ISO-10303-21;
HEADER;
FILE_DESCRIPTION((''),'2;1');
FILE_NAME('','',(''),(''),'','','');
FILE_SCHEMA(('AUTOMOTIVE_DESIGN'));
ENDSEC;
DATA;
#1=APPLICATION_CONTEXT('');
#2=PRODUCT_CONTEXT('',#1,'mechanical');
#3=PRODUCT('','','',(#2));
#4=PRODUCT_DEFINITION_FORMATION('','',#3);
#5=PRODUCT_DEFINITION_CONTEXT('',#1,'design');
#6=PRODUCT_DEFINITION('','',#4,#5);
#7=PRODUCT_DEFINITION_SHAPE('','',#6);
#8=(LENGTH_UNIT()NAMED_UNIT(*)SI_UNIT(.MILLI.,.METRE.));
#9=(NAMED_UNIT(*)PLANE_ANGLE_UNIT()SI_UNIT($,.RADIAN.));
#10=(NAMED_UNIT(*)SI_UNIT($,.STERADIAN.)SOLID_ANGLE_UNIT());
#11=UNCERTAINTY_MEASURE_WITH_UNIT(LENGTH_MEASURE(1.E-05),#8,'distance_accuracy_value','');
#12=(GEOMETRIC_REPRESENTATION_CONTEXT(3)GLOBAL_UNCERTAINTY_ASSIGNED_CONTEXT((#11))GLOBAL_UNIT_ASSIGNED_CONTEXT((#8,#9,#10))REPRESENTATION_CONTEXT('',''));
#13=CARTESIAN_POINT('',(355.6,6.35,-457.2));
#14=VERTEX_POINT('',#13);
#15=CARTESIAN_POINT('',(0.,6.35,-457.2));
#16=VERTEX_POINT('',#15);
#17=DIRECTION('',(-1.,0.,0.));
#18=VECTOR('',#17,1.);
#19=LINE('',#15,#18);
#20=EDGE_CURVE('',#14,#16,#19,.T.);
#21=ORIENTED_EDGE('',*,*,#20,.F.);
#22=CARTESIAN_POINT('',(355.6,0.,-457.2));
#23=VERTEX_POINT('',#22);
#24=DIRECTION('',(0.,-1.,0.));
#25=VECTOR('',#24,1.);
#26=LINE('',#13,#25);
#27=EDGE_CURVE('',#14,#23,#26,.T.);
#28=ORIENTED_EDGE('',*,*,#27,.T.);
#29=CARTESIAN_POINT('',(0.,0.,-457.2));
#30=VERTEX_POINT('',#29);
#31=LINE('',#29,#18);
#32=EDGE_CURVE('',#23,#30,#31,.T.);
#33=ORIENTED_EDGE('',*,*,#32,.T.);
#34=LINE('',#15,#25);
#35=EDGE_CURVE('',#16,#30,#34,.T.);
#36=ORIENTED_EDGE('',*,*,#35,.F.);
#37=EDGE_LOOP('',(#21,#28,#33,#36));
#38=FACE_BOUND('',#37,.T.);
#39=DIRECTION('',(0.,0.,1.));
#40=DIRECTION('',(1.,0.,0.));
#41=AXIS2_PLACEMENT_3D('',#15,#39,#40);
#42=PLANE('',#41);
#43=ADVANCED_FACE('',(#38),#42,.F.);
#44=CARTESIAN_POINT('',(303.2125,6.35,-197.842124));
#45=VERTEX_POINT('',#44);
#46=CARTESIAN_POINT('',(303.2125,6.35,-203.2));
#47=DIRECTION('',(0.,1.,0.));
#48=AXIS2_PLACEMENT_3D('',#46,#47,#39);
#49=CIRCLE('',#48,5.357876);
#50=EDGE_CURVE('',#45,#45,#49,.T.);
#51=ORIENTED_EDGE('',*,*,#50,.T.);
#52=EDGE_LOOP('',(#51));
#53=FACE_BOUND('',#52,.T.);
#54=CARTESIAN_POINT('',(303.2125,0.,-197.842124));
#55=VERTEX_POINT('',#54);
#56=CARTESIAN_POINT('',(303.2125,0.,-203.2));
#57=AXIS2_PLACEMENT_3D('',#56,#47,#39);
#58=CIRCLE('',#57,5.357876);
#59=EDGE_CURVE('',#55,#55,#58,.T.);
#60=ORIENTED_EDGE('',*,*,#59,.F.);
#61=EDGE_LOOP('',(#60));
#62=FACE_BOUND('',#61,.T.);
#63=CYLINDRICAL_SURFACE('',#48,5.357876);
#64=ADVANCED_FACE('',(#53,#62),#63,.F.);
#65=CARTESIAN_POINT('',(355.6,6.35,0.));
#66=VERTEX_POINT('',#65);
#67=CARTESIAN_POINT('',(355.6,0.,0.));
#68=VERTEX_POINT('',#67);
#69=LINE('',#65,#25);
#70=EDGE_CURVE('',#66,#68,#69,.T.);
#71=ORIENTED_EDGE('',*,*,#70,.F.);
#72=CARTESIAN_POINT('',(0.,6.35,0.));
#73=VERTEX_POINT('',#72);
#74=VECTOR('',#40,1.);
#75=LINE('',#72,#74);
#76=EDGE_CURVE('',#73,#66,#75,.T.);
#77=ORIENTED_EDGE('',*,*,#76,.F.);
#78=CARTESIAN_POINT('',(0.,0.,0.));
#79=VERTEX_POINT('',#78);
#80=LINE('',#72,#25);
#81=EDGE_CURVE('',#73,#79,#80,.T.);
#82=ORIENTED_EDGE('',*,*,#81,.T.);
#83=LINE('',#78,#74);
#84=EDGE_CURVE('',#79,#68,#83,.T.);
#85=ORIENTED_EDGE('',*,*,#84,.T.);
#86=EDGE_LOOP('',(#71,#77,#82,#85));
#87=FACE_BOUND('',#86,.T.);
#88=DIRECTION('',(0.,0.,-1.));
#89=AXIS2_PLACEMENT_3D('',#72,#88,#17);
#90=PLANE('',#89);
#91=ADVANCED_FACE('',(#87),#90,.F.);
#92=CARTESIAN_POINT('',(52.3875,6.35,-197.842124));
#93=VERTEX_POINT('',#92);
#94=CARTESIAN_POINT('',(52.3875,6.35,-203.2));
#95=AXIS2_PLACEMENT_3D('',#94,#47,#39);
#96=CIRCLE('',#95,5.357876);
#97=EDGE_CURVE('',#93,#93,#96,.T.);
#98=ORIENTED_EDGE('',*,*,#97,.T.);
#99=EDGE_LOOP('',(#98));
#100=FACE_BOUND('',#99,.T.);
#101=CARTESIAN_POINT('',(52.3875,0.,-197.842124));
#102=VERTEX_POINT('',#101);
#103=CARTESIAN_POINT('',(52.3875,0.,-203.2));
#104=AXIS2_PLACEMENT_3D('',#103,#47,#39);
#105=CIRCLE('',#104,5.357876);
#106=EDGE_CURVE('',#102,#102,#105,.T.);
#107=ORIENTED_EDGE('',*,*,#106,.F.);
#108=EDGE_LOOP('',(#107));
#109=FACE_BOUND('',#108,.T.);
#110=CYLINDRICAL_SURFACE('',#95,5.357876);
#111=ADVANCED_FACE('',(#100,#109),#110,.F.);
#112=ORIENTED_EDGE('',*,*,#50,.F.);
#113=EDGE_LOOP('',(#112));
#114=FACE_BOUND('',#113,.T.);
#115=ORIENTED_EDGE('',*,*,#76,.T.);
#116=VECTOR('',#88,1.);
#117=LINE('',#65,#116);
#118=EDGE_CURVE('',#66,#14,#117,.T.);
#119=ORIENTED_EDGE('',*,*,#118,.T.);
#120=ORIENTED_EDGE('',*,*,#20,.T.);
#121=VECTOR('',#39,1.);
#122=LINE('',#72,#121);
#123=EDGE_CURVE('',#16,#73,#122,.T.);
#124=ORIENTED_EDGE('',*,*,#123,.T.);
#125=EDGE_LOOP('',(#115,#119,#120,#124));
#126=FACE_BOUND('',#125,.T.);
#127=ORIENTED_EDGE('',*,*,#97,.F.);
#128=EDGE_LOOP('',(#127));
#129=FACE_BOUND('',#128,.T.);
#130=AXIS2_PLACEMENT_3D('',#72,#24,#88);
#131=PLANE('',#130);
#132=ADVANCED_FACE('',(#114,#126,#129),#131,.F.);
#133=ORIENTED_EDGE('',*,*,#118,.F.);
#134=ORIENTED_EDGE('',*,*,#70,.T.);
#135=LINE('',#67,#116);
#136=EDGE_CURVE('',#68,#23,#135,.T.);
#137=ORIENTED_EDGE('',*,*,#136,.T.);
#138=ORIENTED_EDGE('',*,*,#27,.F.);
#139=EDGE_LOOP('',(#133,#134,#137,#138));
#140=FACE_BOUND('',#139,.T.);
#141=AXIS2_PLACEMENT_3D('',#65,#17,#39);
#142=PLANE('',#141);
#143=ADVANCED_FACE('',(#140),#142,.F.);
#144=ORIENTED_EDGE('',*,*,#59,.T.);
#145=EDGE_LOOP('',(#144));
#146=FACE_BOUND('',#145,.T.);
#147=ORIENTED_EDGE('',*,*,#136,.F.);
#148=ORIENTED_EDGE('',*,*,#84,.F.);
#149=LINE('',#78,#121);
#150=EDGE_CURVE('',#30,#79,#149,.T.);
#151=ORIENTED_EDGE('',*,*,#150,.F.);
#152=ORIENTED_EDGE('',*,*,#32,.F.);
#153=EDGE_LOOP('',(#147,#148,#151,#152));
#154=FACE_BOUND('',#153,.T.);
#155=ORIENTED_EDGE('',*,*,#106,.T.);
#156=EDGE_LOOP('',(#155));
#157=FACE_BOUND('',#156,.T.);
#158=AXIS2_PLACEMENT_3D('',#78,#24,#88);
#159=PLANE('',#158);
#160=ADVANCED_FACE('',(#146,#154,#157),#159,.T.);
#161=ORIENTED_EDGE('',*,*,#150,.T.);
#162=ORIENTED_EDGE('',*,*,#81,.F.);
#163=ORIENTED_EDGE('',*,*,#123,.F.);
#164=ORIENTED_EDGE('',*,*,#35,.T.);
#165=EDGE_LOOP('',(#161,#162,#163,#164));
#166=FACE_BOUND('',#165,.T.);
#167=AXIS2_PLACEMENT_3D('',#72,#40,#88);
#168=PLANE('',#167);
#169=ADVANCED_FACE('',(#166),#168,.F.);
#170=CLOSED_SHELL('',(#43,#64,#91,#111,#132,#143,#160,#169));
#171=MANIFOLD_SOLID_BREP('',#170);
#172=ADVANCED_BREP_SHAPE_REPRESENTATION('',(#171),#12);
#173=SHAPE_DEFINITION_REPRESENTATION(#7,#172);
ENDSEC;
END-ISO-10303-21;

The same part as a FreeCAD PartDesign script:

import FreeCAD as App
import Part
import Sketcher
Q = App.Units.Quantity

doc = App.newDocument("Part")
body = doc.addObject("PartDesign::Body", "Body")

# Sketch on XZ plane
sketch1 = body.newObject("Sketcher::SketchObject", "Sketch")
sketch1.AttachmentSupport = (doc.getObject("XZ_Plane"), [""])
sketch1.MapMode = "FlatFace"
sketch1.addGeometry(Part.LineSegment(App.Vector(0, -457.2, 0), App.Vector(0, 0, 0)), False)
sketch1.addGeometry(Part.LineSegment(App.Vector(0, 0, 0), App.Vector(355.6, 0, 0)), False)
sketch1.addGeometry(Part.LineSegment(App.Vector(355.6, 0, 0), App.Vector(355.6, -457.2, 0)), False)
sketch1.addGeometry(Part.LineSegment(App.Vector(355.6, -457.2, 0), App.Vector(0, -457.2, 0)), False)
sketch1.addConstraint(Sketcher.Constraint("Coincident", 0, 2, 1, 1))
sketch1.addConstraint(Sketcher.Constraint("Coincident", 1, 2, 2, 1))
sketch1.addConstraint(Sketcher.Constraint("Coincident", 2, 2, 3, 1))
sketch1.addConstraint(Sketcher.Constraint("Coincident", 3, 2, 0, 1))
sketch1.addConstraint(Sketcher.Constraint("Vertical", 0))
sketch1.addConstraint(Sketcher.Constraint("Horizontal", 1))
sketch1.addConstraint(Sketcher.Constraint("Vertical", 2))
sketch1.addConstraint(Sketcher.Constraint("Horizontal", 3))
sketch1.addConstraint(Sketcher.Constraint("Coincident", 0, 2, -1, 1))
sketch1.addConstraint(Sketcher.Constraint("DistanceX", 1, 1, 1, 2, Q("14 in")))
sketch1.addConstraint(Sketcher.Constraint("DistanceY", 0, 1, 0, 2, Q("18 in")))
pad1 = body.newObject("PartDesign::Pad", "Pad")
pad1.Profile = sketch1
pad1.Length = Q("0.25 in")
pad1.Reversed = True

# Sketch on XZ plane
sketch2 = body.newObject("Sketcher::SketchObject", "Sketch001")
sketch2.AttachmentSupport = (doc.getObject("XZ_Plane"), [""])
sketch2.MapMode = "FlatFace"
sketch2.AttachmentOffset = App.Placement(App.Vector(0, 0, -0.25 * 25.4), App.Rotation())
sketch2.addGeometry(Part.Circle(App.Vector(303.2125, -203.2, 0), App.Vector(0, 0, 1), 5.357876), False)
sketch2.addGeometry(Part.Circle(App.Vector(52.3875, -203.2, 0), App.Vector(0, 0, 1), 5.357876), False)
sketch2.addConstraint(Sketcher.Constraint("Equal", 0, 1))
sketch2.addConstraint(Sketcher.Constraint("Horizontal", 0, 3, 1, 3))
sketch2.addConstraint(Sketcher.Constraint("DistanceY", 0, 3, -1, 1, Q("8 in")))
sketch2.addConstraint(Sketcher.Constraint("DistanceX", -1, 1, 0, 3, Q("11.9375 in")))
sketch2.addConstraint(Sketcher.Constraint("DistanceX", -1, 1, 1, 3, Q("2.0625 in")))
sketch2.addConstraint(Sketcher.Constraint("Diameter", 0, 10.715752))
doc.recompute()
hole = body.newObject("PartDesign::Hole", "Hole")
hole.Profile = sketch2
hole.ThreadType = "None"
hole.Diameter = 10.715752
hole.DepthType = "ThroughAll"
hole.Reversed = True

doc.recompute()
